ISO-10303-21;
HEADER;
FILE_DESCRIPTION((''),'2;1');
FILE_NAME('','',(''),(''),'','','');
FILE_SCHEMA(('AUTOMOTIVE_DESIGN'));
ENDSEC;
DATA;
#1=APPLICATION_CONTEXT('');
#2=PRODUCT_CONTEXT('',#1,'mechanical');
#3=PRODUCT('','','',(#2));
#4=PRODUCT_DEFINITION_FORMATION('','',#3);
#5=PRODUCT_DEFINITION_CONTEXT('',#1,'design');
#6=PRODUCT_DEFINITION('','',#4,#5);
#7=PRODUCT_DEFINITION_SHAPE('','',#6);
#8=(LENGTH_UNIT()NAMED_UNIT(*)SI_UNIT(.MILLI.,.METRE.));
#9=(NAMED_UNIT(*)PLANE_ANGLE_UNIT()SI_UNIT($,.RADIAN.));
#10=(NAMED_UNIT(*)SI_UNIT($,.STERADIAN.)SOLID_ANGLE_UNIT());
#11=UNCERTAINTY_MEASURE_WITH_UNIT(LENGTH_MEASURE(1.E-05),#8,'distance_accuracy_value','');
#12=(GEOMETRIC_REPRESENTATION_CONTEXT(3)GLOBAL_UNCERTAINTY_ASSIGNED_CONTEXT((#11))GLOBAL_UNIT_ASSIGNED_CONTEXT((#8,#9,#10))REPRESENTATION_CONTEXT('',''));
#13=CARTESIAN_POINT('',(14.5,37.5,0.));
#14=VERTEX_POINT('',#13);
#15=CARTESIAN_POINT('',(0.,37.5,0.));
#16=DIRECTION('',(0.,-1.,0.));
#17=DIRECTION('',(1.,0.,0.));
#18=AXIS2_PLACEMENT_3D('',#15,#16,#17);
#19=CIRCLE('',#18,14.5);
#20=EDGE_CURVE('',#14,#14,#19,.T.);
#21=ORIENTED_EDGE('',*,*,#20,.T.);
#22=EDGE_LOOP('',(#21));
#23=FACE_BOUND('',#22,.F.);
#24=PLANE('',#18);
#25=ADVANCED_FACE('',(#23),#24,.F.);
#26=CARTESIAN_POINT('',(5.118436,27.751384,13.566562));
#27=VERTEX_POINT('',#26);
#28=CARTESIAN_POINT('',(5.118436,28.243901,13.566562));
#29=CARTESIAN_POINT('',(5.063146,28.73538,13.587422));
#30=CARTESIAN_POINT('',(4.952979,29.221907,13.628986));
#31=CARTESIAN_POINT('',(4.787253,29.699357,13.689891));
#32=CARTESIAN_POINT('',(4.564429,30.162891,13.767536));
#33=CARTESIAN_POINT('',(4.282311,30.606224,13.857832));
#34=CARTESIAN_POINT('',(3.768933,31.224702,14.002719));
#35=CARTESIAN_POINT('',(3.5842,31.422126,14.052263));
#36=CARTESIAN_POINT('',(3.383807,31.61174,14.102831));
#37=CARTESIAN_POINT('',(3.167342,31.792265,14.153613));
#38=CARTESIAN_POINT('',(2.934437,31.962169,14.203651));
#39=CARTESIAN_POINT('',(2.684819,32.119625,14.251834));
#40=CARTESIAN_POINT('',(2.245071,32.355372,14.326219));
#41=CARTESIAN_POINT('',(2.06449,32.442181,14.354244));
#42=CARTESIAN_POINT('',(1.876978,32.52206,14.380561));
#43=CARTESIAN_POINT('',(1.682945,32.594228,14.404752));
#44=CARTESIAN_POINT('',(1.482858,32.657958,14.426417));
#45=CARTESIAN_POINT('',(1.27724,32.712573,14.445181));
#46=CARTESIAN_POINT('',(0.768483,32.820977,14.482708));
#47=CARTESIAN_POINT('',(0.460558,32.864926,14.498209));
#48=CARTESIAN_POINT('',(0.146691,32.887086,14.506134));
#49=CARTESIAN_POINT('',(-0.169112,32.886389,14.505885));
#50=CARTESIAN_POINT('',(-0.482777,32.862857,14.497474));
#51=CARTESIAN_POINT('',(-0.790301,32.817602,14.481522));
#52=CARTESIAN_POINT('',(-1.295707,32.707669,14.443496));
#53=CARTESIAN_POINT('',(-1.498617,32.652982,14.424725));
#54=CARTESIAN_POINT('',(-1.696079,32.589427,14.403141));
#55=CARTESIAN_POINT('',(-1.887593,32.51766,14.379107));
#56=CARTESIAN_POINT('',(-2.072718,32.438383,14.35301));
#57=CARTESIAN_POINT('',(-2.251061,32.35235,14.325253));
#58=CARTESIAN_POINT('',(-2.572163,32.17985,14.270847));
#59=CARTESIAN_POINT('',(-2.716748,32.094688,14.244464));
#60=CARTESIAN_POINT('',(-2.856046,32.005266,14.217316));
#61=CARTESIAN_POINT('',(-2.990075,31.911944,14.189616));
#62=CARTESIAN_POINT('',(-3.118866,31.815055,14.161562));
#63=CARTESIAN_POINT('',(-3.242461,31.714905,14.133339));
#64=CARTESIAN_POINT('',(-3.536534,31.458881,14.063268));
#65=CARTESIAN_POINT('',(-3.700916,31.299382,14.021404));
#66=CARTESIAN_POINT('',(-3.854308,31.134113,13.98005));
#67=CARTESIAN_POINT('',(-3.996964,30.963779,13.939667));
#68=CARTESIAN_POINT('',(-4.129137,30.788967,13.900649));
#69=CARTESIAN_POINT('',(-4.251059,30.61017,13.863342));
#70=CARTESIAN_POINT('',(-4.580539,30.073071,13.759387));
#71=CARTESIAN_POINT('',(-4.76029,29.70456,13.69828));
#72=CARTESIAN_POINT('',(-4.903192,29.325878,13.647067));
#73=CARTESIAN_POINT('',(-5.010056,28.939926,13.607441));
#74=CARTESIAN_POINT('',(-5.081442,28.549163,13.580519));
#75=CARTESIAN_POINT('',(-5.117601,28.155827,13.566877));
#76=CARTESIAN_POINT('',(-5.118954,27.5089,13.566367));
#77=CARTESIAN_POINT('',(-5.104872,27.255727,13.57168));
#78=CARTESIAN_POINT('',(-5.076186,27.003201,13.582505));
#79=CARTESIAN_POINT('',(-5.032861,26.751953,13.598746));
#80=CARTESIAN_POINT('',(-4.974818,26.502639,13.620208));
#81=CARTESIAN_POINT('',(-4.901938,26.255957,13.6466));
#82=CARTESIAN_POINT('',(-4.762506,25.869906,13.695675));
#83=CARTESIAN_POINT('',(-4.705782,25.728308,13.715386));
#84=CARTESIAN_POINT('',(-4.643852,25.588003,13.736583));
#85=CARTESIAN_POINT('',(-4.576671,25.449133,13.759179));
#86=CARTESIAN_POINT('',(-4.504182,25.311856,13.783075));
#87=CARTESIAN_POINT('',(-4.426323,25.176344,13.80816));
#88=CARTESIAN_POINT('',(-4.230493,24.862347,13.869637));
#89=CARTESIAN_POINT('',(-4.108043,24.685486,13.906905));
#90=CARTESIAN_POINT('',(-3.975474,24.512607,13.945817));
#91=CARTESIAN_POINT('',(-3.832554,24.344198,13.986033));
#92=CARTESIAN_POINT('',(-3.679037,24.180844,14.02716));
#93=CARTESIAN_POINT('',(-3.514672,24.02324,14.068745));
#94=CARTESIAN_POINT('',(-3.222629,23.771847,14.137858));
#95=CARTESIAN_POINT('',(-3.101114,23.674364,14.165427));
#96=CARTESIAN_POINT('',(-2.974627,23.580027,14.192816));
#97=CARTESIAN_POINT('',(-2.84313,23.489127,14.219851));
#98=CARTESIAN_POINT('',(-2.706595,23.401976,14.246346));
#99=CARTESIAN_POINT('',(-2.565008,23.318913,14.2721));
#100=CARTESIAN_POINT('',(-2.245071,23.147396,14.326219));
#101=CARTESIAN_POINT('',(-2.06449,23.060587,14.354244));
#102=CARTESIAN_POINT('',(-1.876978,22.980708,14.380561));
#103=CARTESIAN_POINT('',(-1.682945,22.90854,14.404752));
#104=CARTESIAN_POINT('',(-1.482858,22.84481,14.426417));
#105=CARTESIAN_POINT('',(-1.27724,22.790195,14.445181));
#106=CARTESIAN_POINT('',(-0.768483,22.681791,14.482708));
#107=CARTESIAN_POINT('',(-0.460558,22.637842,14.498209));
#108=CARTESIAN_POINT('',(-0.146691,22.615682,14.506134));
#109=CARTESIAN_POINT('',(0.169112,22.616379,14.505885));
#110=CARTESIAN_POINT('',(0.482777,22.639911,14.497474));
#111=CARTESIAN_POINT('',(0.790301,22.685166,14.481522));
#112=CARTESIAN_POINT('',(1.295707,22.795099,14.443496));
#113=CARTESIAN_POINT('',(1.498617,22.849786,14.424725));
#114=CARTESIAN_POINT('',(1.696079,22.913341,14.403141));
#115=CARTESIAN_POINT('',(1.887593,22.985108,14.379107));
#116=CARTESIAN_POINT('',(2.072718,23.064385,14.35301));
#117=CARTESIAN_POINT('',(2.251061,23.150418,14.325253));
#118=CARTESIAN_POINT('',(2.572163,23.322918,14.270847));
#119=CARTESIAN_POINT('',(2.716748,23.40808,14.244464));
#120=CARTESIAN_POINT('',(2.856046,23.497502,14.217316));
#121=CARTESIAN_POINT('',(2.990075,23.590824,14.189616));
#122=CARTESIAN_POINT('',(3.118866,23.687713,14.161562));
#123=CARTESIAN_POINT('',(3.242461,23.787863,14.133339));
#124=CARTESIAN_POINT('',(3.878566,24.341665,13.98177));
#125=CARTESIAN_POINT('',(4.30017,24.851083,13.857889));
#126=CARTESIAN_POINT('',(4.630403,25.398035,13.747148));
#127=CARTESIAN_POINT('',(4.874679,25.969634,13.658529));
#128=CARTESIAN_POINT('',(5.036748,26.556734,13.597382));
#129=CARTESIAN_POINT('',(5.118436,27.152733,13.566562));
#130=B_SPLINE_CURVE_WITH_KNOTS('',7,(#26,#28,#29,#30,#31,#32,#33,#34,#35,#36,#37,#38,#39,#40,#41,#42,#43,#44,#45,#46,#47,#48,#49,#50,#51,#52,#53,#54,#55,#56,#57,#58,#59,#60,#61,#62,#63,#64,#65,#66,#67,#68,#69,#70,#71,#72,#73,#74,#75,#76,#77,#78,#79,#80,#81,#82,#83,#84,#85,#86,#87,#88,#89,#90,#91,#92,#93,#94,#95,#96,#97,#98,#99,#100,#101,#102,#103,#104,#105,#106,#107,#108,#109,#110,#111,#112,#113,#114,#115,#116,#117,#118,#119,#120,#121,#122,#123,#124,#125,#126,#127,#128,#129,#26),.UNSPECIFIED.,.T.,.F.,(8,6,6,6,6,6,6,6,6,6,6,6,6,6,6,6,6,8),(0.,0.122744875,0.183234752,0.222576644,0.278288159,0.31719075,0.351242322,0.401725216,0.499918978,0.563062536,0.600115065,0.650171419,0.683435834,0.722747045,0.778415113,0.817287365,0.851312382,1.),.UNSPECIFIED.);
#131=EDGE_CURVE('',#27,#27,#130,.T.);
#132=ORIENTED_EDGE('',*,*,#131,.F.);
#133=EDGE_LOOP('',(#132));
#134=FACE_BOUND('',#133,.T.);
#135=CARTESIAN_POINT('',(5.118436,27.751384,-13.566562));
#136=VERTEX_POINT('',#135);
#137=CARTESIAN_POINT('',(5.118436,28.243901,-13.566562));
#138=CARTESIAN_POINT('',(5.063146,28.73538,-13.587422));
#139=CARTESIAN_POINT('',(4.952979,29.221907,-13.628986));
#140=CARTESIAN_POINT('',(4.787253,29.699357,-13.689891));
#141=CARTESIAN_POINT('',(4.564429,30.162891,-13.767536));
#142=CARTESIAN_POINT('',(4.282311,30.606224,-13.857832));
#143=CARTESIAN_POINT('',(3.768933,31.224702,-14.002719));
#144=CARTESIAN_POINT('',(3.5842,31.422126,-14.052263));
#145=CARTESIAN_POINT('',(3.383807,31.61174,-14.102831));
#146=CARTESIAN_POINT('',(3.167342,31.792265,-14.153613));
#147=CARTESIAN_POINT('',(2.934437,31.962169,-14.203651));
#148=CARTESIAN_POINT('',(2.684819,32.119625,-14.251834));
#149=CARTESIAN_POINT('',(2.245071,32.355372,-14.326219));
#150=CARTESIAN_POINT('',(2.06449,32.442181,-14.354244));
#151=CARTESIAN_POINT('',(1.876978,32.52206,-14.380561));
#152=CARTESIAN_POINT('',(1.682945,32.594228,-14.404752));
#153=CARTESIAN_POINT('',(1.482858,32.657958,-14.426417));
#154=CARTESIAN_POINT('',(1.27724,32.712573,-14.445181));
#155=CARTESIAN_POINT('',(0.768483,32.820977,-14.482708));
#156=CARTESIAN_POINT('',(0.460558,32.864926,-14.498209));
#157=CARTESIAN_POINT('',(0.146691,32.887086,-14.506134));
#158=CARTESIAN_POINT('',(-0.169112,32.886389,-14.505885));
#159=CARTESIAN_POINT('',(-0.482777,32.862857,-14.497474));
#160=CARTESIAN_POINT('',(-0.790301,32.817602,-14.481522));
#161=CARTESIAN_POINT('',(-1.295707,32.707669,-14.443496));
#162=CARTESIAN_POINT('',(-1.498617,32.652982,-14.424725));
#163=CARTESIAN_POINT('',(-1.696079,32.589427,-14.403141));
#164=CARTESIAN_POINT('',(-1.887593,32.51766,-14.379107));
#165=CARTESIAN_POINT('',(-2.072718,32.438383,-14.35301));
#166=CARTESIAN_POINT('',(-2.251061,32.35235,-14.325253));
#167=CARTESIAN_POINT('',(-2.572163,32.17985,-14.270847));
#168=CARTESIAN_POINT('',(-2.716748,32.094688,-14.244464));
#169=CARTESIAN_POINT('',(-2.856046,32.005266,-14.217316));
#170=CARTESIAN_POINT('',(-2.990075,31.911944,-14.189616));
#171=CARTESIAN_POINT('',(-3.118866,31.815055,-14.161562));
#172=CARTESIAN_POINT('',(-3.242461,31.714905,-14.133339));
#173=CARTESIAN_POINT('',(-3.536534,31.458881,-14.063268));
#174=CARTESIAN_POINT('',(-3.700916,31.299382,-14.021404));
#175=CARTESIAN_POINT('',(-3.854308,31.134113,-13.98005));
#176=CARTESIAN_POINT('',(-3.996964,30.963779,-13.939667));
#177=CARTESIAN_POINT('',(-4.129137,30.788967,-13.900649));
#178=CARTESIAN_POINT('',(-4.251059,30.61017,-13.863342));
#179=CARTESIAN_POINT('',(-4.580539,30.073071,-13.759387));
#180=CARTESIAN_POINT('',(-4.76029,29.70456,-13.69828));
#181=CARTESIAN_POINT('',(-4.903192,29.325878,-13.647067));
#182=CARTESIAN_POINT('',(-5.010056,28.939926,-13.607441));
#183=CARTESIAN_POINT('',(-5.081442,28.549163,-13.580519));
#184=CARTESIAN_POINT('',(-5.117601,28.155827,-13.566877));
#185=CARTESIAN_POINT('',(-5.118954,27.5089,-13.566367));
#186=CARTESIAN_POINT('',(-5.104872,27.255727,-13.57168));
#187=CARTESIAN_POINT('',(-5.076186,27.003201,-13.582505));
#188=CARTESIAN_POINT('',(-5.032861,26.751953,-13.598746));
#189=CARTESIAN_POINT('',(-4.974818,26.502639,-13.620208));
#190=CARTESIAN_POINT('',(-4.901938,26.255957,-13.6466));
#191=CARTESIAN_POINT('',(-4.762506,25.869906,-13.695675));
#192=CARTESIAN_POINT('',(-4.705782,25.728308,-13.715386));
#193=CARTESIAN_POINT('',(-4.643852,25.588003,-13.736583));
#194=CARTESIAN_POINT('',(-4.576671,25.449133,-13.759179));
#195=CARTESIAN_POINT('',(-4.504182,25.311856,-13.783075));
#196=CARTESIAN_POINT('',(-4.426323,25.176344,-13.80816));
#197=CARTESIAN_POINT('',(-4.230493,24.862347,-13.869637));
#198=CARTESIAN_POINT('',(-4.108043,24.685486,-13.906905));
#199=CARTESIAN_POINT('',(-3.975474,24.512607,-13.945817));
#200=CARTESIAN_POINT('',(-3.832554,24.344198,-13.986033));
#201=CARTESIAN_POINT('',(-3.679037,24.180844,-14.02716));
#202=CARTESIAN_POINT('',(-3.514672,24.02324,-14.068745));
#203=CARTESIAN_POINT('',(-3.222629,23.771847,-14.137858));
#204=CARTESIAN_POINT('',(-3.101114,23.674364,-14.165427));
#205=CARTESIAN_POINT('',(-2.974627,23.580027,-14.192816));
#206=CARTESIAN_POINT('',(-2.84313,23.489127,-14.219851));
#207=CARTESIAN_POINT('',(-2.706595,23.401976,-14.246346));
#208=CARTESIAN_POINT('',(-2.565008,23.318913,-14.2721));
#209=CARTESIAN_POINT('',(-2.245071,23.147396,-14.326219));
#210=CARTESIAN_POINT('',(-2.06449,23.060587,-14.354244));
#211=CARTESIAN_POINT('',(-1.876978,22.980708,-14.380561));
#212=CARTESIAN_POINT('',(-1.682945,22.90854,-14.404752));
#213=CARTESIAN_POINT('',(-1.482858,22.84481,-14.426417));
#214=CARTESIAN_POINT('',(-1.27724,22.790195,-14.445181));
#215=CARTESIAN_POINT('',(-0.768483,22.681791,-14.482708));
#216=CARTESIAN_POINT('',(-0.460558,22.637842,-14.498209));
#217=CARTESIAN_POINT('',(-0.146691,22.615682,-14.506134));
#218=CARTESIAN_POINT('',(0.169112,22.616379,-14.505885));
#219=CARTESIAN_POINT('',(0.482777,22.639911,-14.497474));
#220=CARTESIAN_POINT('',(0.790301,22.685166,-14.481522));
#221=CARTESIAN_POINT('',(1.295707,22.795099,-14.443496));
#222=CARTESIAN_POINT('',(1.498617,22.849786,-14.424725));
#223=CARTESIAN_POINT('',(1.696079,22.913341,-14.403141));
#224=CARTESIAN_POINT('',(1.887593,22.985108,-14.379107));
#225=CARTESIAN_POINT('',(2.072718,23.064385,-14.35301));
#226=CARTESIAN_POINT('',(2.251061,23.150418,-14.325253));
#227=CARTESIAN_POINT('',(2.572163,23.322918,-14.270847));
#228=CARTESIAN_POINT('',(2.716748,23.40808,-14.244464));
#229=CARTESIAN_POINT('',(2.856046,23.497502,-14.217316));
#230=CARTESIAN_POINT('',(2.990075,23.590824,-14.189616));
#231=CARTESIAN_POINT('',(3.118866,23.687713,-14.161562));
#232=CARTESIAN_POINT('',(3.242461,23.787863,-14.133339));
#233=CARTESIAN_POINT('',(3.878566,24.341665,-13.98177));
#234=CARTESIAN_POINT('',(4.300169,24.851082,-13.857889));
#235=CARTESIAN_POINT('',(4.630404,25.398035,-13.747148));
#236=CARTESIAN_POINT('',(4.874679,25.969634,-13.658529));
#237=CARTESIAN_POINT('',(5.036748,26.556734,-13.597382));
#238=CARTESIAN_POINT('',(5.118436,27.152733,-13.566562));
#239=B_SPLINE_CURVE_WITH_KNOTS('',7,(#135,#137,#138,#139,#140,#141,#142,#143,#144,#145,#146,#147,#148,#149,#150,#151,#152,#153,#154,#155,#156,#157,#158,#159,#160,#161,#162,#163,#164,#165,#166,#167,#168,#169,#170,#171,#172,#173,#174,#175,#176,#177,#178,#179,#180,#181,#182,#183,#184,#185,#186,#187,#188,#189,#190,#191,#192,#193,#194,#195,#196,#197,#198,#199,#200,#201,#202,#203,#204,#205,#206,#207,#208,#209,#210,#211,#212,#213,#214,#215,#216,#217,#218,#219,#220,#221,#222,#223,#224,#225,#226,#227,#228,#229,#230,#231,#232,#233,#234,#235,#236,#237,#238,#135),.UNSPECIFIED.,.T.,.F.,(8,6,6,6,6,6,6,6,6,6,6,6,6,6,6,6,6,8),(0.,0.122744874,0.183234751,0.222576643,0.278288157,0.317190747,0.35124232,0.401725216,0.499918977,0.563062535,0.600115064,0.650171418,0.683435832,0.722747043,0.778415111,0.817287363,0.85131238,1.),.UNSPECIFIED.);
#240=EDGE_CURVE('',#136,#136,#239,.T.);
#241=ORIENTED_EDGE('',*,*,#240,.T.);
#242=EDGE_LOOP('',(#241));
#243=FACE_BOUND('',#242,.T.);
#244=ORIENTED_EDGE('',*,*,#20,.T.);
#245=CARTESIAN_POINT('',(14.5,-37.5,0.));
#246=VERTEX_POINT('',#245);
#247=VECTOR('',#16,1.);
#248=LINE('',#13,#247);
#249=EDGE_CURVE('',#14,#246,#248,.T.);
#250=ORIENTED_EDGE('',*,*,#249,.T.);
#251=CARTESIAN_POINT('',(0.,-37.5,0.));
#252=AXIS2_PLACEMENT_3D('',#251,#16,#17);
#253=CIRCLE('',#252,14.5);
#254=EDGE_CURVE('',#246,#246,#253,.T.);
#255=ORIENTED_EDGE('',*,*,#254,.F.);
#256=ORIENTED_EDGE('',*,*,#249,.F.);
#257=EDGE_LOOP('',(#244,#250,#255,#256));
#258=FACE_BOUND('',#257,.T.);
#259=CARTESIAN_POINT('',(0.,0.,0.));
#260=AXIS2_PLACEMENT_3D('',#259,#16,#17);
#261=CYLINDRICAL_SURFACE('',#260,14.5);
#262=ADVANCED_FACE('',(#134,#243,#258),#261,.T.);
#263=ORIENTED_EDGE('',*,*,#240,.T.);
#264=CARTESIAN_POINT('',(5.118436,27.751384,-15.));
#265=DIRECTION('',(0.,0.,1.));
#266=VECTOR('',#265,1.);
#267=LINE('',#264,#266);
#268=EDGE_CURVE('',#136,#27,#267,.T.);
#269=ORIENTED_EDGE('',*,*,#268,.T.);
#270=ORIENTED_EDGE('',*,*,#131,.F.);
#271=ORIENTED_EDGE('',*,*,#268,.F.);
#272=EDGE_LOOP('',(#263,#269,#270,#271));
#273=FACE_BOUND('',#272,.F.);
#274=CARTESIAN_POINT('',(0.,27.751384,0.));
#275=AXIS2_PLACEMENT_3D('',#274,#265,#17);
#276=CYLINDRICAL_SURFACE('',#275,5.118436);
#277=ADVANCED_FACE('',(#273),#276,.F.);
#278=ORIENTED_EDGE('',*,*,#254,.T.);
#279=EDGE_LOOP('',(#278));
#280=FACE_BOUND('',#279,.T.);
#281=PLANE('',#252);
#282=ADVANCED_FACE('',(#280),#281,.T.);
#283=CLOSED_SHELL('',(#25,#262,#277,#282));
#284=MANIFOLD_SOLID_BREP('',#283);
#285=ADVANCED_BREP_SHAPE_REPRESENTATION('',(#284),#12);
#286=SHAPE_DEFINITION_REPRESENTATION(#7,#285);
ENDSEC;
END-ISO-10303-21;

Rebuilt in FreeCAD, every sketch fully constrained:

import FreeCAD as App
import Part
import Sketcher
from FreeCAD import Vector
Q = App.Units.Quantity

doc = App.newDocument("Part")
body = doc.addObject("PartDesign::Body", "Body")

# Sketch on XZ plane
sketch1 = body.newObject("Sketcher::SketchObject", "Sketch")
sketch1.AttachmentSupport = (doc.getObject("XZ_Plane"), [""])
sketch1.MapMode = "FlatFace"
sketch1.addGeometry(Part.Circle(Vector(0, 0, 0), Vector(0, 0, 1), 14), False)
sketch1.addConstraint([
    Sketcher.Constraint("Coincident", 0, 3, -1, 1),
    Sketcher.Constraint("Diameter", 0, Q("29 mm")),
])
pad1 = body.newObject("PartDesign::Pad", "Pad")
pad1.Profile = sketch1
pad1.Length = 75
pad1.Midplane = True

# Sketch on XY plane
sketch2 = body.newObject("Sketcher::SketchObject", "Sketch001")
sketch2.AttachmentSupport = (doc.getObject("XY_Plane"), [""])
sketch2.MapMode = "FlatFace"
sketch2.addGeometry(Part.Circle(Vector(0, 28, 0), Vector(0, 0, 1), 5), False)
sketch2.addConstraint([
    Sketcher.Constraint("PointOnObject", 0, 3, -2),
    Sketcher.Constraint("Diameter", 0, Q("10.236872 mm")),
    Sketcher.Constraint("DistanceY", -1, 1, 0, 3, Q("27.751384 mm")),
])
pocket1 = body.newObject("PartDesign::Pocket", "Pocket")
pocket1.Profile = sketch2
pocket1.Length = 30
pocket1.Midplane = True

doc.recompute()
